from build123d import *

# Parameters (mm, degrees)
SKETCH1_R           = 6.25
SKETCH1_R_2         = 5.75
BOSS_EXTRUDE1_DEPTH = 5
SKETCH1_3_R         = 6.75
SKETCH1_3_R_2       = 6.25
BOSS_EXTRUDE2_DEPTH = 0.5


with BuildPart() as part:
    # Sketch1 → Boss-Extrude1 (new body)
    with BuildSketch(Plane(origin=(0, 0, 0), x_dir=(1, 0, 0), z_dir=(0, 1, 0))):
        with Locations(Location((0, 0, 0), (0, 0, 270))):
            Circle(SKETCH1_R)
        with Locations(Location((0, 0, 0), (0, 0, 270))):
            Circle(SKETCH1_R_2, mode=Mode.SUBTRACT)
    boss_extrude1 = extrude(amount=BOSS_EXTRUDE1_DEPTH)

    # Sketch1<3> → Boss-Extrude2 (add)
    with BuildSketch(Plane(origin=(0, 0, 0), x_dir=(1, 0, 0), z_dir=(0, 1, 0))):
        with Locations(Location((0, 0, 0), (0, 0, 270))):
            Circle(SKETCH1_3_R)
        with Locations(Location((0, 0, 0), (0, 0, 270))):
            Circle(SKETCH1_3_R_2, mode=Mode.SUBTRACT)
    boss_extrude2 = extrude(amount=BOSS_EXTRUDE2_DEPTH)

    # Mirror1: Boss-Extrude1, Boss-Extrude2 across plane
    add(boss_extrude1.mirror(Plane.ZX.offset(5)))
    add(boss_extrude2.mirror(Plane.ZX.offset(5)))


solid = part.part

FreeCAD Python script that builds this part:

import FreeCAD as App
import Part
import Sketcher

V = App.Vector
Q = App.Units.Quantity

doc = App.newDocument("Part")
body = doc.addObject("PartDesign::Body", "Body")

# Sketch on XZ plane
sketch1 = body.newObject("Sketcher::SketchObject", "Sketch")
sketch1.AttachmentSupport = (doc.getObject("XZ_Plane"), [""])
sketch1.MapMode = "FlatFace"
sketch1.addGeometry(Part.Circle(V(0, 0, 0), V(0, 0, 1), 6), False)
sketch1.addGeometry(Part.Circle(V(0, 0, 0), V(0, 0, 1), 6), False)
sketch1.addConstraint(Sketcher.Constraint("Coincident", 0, 3, -1, 1))
sketch1.addConstraint(Sketcher.Constraint("Coincident", 1, 3, -1, 1))
sketch1.addConstraint(Sketcher.Constraint("Diameter", 0, Q("12.5 mm")))
sketch1.addConstraint(Sketcher.Constraint("Diameter", 1, Q("11.5 mm")))
pad1 = body.newObject("PartDesign::Pad", "Pad")
pad1.Profile = sketch1
pad1.Length = 5
pad1.Reversed = True

# Sketch on XZ plane
sketch2 = body.newObject("Sketcher::SketchObject", "Sketch001")
sketch2.AttachmentSupport = (doc.getObject("XZ_Plane"), [""])
sketch2.MapMode = "FlatFace"
sketch2.addGeometry(Part.Circle(V(0, 0, 0), V(0, 0, 1), 7), False)
sketch2.addGeometry(Part.Circle(V(0, 0, 0), V(0, 0, 1), 6), False)
sketch2.addConstraint(Sketcher.Constraint("Coincident", 0, 3, -1, 1))
sketch2.addConstraint(Sketcher.Constraint("Coincident", 1, 3, -1, 1))
sketch2.addConstraint(Sketcher.Constraint("Diameter", 0, Q("13.5 mm")))
sketch2.addConstraint(Sketcher.Constraint("Diameter", 1, Q("12.5 mm")))
pad2 = body.newObject("PartDesign::Pad", "Pad001")
pad2.Profile = sketch2
pad2.Length = 0.5
pad2.Reversed = True
doc.recompute()

datumplane = body.newObject("PartDesign::Plane", "DatumPlane")
datumplane.AttachmentSupport = (doc.getObject("XZ_Plane"), [""])
datumplane.MapMode = "FlatFace"
datumplane.AttachmentOffset = App.Placement(V(0, 0, -5), App.Rotation())
mirrored = body.newObject("PartDesign::Mirrored", "Mirrored")
mirrored.Originals = [pad1, pad2]
mirrored.MirrorPlane = (datumplane, [""])
body.Tip = mirrored

doc.recompute()
